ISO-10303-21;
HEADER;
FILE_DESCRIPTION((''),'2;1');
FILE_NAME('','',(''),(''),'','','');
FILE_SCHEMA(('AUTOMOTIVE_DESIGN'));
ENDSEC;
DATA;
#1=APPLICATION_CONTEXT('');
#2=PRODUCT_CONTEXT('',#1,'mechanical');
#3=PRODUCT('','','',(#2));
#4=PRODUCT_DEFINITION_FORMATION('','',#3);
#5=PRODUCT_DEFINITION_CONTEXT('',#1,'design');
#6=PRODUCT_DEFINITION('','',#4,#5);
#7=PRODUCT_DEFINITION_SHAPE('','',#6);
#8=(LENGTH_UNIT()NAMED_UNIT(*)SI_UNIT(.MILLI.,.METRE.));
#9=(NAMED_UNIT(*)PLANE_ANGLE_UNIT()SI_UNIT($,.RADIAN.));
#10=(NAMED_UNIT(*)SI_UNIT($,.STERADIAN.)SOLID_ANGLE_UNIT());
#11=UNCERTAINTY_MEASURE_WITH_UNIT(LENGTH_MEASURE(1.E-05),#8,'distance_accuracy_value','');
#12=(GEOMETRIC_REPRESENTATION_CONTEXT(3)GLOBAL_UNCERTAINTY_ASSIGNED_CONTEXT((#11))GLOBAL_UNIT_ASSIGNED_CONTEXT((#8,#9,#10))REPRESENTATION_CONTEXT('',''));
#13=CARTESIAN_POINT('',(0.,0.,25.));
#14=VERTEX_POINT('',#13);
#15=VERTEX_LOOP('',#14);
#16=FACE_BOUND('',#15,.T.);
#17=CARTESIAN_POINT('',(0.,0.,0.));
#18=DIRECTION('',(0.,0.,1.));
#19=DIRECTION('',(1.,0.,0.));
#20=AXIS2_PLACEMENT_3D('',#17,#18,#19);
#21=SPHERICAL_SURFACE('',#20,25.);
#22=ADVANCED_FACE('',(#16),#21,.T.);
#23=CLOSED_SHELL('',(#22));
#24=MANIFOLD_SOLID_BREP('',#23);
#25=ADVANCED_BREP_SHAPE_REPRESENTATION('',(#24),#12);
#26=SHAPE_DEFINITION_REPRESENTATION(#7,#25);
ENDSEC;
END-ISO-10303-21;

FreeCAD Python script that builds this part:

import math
import FreeCAD as App
import Part
import Sketcher
from FreeCAD import Vector

doc = App.newDocument("Part")
body = doc.addObject("PartDesign::Body", "Body")

# Sketch on XZ plane
sketch1 = body.newObject("Sketcher::SketchObject", "Sketch")
sketch1.AttachmentSupport = (doc.getObject("XZ_Plane"), [""])
sketch1.MapMode = "FlatFace"
sketch1.addGeometry([
    Part.ArcOfCircle(Part.Circle(Vector(0, 0, 0), Vector(0, 0, 1), 25), math.radians(-90), math.radians(90)),
    Part.LineSegment(Vector(0, 25, 0), Vector(0, -25, 0)),
], False)
sketch1.addConstraint([
    Sketcher.Constraint("Coincident", 0, 1, 1, 2),
    Sketcher.Constraint("Coincident", 1, 1, 0, 2),
    Sketcher.Constraint("Vertical", 1),
    Sketcher.Constraint("Coincident", 0, 3, -1, 1),
    Sketcher.Constraint("PointOnObject", 0, 1, -2),
    Sketcher.Constraint("Radius", 0, 25.0),
])
revolution = body.newObject("PartDesign::Revolution", "Revolution")
revolution.Profile = sketch1
revolution.ReferenceAxis = (sketch1, ["V_Axis"])
revolution.Angle = 360

doc.recompute()
